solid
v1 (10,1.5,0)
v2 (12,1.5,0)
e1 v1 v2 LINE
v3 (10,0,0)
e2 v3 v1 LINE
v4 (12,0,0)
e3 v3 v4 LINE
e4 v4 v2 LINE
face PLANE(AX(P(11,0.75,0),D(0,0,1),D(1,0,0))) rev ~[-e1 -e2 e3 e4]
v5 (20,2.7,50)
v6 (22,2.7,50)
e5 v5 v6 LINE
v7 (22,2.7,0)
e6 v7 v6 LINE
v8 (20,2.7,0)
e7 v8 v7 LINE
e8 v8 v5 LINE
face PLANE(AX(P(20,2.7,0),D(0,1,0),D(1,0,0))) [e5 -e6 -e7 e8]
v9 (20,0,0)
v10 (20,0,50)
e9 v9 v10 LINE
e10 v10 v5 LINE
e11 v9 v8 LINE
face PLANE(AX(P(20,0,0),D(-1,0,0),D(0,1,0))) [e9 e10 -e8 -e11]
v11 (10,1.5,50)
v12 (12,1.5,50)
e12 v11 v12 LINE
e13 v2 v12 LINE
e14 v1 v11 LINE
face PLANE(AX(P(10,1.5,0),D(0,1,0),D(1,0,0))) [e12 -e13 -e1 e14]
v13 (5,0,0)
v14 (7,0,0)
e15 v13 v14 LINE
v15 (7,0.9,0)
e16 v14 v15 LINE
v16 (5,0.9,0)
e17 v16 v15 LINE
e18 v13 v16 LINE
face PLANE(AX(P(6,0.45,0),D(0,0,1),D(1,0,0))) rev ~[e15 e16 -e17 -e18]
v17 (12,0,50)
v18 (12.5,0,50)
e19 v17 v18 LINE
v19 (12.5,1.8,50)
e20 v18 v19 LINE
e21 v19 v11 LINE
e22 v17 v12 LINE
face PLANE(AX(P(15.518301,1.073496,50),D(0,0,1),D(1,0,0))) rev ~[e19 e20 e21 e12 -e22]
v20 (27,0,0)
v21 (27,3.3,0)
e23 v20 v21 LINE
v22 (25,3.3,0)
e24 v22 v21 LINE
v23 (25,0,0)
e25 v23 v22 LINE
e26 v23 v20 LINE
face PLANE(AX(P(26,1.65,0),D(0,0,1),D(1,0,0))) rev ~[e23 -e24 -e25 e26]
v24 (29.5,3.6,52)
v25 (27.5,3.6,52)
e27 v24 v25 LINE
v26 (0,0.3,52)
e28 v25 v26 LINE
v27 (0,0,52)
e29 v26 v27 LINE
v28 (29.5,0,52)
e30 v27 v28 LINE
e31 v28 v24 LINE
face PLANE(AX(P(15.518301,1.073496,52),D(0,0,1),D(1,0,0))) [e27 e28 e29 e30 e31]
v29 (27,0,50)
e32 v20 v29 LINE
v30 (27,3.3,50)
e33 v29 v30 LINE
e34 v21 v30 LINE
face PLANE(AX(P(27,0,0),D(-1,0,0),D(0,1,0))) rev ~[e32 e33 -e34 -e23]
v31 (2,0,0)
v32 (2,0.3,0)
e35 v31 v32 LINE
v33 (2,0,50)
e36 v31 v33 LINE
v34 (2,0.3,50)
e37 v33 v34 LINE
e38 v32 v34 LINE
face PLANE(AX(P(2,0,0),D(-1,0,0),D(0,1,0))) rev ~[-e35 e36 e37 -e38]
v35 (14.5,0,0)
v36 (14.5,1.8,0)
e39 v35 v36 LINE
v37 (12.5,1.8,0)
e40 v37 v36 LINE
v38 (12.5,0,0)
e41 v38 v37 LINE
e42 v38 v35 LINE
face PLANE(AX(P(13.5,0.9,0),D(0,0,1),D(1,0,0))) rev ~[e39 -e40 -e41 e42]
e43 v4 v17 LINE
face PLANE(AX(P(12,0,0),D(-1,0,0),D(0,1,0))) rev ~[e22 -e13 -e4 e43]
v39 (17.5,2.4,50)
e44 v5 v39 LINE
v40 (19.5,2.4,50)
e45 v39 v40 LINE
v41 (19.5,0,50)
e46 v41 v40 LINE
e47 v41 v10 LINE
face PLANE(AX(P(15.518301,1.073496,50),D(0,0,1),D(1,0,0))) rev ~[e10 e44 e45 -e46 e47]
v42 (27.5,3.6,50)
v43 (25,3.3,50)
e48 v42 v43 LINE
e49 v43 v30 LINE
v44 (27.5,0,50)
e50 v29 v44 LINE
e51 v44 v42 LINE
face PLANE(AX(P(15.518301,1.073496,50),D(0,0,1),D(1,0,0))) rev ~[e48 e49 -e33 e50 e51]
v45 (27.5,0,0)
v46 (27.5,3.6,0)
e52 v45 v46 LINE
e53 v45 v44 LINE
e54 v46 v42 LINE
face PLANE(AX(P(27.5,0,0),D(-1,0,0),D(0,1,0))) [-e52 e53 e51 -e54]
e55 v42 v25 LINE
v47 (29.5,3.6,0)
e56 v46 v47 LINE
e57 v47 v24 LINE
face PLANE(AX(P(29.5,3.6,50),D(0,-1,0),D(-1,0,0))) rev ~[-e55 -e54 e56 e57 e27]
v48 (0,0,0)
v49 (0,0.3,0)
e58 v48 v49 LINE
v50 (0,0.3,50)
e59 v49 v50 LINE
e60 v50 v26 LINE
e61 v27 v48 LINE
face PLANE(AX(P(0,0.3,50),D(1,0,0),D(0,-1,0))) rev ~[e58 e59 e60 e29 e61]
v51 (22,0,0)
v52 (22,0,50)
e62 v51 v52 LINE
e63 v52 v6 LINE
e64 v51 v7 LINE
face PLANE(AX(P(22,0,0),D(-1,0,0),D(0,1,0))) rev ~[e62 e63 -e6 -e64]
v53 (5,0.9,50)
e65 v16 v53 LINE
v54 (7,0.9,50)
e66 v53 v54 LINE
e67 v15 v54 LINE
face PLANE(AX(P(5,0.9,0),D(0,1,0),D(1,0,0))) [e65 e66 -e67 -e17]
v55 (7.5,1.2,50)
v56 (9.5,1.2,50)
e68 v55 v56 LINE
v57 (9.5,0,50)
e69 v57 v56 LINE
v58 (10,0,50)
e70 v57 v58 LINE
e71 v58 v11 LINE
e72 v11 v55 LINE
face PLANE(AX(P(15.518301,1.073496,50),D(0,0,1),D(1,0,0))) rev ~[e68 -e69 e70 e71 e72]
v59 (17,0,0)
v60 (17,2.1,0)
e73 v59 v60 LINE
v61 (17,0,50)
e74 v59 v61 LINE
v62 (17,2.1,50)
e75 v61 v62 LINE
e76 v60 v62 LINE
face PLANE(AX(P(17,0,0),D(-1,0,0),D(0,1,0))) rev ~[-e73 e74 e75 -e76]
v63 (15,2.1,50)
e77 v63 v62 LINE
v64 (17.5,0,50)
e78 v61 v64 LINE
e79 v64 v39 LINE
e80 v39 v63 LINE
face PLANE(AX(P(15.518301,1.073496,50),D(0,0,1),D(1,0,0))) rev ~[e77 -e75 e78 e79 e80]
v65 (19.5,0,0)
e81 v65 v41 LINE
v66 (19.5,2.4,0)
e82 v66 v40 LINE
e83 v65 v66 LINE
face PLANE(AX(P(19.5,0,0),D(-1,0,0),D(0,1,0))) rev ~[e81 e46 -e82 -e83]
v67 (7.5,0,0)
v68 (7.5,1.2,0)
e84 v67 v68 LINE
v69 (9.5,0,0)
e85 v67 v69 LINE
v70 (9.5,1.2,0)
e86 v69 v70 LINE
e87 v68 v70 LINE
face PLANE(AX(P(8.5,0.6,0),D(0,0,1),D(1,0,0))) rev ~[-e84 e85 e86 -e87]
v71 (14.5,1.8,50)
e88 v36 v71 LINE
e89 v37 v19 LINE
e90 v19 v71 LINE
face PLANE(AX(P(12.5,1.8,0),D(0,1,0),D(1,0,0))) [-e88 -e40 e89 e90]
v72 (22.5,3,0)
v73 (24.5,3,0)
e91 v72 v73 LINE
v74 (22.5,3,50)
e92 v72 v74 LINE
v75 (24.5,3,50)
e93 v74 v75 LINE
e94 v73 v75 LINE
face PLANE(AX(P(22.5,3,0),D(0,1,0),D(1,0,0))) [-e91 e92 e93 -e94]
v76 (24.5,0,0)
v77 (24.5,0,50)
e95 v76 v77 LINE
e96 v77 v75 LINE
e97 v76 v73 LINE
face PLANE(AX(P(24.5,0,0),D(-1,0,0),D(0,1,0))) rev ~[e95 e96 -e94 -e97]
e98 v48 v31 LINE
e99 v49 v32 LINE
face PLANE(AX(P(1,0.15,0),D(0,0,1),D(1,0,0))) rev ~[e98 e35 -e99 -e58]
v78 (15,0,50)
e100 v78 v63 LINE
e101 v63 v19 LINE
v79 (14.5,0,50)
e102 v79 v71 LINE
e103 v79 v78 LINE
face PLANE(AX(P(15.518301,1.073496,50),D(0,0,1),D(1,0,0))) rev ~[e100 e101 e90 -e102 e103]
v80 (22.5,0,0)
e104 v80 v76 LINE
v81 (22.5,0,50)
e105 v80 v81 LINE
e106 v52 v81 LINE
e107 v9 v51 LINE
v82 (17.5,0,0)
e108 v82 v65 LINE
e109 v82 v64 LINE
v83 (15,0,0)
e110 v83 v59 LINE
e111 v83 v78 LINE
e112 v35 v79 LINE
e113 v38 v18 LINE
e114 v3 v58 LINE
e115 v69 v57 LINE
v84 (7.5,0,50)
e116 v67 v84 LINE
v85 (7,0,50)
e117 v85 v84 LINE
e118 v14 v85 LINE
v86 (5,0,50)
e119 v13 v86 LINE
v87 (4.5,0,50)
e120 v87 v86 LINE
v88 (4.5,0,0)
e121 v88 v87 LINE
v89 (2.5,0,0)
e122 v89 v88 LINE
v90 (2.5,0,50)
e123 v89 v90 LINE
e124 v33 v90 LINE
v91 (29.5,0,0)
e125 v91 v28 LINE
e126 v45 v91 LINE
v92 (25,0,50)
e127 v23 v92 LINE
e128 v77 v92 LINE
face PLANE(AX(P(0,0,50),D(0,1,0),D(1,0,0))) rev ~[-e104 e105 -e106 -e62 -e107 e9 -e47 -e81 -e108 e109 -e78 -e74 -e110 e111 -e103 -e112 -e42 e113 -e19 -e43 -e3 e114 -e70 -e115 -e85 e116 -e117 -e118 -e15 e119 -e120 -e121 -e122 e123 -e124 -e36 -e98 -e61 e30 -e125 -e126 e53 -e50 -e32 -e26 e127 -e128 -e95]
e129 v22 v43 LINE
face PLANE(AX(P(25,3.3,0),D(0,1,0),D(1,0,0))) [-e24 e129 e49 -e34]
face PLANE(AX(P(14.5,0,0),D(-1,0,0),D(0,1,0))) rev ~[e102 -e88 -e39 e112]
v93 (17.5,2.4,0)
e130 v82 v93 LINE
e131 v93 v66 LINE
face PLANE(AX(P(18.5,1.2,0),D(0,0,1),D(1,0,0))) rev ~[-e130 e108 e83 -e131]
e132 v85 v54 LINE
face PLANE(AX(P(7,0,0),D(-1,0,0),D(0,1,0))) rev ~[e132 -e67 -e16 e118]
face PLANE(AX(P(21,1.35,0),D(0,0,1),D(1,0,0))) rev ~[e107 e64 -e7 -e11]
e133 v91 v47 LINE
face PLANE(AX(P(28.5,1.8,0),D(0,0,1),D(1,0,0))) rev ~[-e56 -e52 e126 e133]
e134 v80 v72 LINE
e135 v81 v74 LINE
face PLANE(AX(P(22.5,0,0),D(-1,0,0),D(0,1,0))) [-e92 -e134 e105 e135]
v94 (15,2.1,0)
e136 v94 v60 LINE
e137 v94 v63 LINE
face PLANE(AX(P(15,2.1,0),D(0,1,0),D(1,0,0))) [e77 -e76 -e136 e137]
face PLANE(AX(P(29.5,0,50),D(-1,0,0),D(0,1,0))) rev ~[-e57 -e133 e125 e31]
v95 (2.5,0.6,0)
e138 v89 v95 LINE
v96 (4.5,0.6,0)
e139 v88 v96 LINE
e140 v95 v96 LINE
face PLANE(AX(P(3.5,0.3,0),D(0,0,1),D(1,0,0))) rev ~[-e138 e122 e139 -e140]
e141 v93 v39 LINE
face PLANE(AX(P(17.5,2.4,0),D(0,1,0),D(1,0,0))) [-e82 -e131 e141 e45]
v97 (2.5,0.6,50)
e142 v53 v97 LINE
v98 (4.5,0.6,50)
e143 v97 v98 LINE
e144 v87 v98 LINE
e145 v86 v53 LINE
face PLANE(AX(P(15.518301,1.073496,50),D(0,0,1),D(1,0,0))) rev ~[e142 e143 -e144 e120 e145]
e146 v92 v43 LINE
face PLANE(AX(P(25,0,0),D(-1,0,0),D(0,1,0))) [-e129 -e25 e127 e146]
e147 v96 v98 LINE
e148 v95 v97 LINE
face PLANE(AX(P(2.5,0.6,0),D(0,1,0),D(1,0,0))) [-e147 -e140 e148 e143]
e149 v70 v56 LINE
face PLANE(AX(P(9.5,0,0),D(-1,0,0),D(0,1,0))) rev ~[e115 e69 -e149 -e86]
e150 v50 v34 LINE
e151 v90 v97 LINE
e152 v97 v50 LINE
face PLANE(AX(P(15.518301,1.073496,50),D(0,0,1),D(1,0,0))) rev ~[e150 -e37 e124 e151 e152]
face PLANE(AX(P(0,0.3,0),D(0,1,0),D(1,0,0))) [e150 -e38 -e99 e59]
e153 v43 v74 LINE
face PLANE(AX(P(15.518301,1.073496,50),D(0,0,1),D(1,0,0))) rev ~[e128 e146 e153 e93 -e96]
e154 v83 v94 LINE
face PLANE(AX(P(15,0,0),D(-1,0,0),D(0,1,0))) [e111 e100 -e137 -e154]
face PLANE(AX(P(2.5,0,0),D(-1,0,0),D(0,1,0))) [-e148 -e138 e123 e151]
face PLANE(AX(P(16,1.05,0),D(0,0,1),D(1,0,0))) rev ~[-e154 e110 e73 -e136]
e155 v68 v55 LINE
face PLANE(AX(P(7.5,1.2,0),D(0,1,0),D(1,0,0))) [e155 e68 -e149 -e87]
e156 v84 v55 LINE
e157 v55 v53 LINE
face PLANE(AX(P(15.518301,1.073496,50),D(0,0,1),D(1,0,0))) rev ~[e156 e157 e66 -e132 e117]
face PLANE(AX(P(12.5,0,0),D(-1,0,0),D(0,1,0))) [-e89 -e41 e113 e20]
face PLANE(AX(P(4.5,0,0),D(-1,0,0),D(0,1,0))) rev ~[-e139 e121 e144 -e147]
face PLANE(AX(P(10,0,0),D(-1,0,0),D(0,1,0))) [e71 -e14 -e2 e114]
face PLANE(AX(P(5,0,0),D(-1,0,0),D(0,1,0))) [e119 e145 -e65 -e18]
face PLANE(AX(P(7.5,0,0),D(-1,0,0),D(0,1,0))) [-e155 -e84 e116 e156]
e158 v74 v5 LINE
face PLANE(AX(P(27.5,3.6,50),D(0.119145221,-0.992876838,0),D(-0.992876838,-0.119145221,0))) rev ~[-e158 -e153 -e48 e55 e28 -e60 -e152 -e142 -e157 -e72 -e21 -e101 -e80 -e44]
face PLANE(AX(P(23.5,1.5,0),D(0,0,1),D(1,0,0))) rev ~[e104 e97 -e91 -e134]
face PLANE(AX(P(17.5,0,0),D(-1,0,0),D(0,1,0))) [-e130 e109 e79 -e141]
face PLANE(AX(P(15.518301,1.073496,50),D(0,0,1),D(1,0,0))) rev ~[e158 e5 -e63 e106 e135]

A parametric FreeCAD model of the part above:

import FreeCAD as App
import Part
import Sketcher

doc = App.newDocument("Part")
params = doc.addObject("Spreadsheet::Sheet", "Params")
for row, (alias, value) in enumerate([
    ("sketch1_width", "2 mm"),
    ("sketch1_height", "0.3 mm"),
    ("pad1_length", "50 mm"),
    ("sketch2_width", "2 mm"),
    ("sketch2_height", "0.6 mm"),
    ("pad2_length", "50 mm"),
    ("sketch3_width", "2 mm"),
    ("sketch3_height", "0.9 mm"),
    ("pad3_length", "50 mm"),
    ("sketch4_width", "2 mm"),
    ("sketch4_height", "1.2 mm"),
    ("pad4_length", "50 mm"),
    ("sketch5_width", "2 mm"),
    ("sketch5_height", "1.5 mm"),
    ("pad5_length", "50 mm"),
    ("sketch6_width", "2 mm"),
    ("sketch6_height", "1.8 mm"),
    ("pad6_length", "50 mm"),
    ("sketch7_width", "2 mm"),
    ("sketch7_height", "2.1 mm"),
    ("pad7_length", "50 mm"),
    ("sketch8_width", "2 mm"),
    ("sketch8_height", "2.4 mm"),
    ("pad8_length", "50 mm"),
    ("sketch9_width", "2 mm"),
    ("sketch9_height", "2.7 mm"),
    ("pad9_length", "50 mm"),
    ("sketch10_width", "2 mm"),
    ("sketch10_height", "3 mm"),
    ("pad10_length", "50 mm"),
    ("sketch11_width", "2 mm"),
    ("sketch11_height", "3.3 mm"),
    ("pad11_length", "50 mm"),
    ("sketch12_width", "2 mm"),
    ("sketch12_height", "3.6 mm"),
    ("pad12_length", "50 mm"),
    ("sketch13_width", "2 mm"),
    ("sketch13_width2", "29.5 mm"),
    ("sketch13_height", "3.6 mm"),
    ("sketch13_height2", "0.3 mm"),
    ("pad13_length", "2 mm"),
], start=1):
    params.set(f"A{row}", alias)
    params.set(f"B{row}", "=" + value)
    params.setAlias(f"B{row}", alias)

body = doc.addObject("PartDesign::Body", "Body")

# Sketch on XY plane
sketch1 = doc.addObject("Sketcher::SketchObject", "Sketch")
body.addObject(sketch1)
sketch1.AttachmentSupport = (doc.XY_Plane, [""])
sketch1.MapMode = "FlatFace"
sketch1.addGeometry(Part.LineSegment(App.Vector(0, 0.3, 0), App.Vector(0, 0, 0)), False)
sketch1.addGeometry(Part.LineSegment(App.Vector(0, 0, 0), App.Vector(2, 0, 0)), False)
sketch1.addGeometry(Part.LineSegment(App.Vector(2, 0, 0), App.Vector(2, 0.3, 0)), False)
sketch1.addGeometry(Part.LineSegment(App.Vector(2, 0.3, 0), App.Vector(0, 0.3, 0)), False)
sketch1.addConstraint(Sketcher.Constraint("Coincident", 0, 2, 1, 1))
sketch1.addConstraint(Sketcher.Constraint("Coincident", 1, 2, 2, 1))
sketch1.addConstraint(Sketcher.Constraint("Coincident", 2, 2, 3, 1))
sketch1.addConstraint(Sketcher.Constraint("Coincident", 3, 2, 0, 1))
sketch1.addConstraint(Sketcher.Constraint("Vertical", 0))
sketch1.addConstraint(Sketcher.Constraint("Horizontal", 1))
sketch1.addConstraint(Sketcher.Constraint("Vertical", 2))
sketch1.addConstraint(Sketcher.Constraint("Horizontal", 3))
sketch1.addConstraint(Sketcher.Constraint("Coincident", 0, 2, -1, 1))
sketch1.addConstraint(Sketcher.Constraint("DistanceX", 1, 1, 1, 2, 2.0))
sketch1.addConstraint(Sketcher.Constraint("DistanceY", 0, 2, 0, 1, 0.3))
sketch1.setExpression("Constraints[9]", "Params.sketch1_width")
sketch1.setExpression("Constraints[10]", "Params.sketch1_height")
pad1 = doc.addObject("PartDesign::Pad", "Pad")
body.addObject(pad1)
pad1.Profile = sketch1
pad1.setExpression("Length", "Params.pad1_length")
body2 = doc.addObject("PartDesign::Body", "Body001")

# Sketch on XY plane
sketch2 = doc.addObject("Sketcher::SketchObject", "Sketch001")
body2.addObject(sketch2)
sketch2.AttachmentSupport = (doc.getObject("XY_Plane001"), [""])
sketch2.MapMode = "FlatFace"
sketch2.addGeometry(Part.LineSegment(App.Vector(2.5, 0.6, 0), App.Vector(2.5, 0, 0)), False)
sketch2.addGeometry(Part.LineSegment(App.Vector(2.5, 0, 0), App.Vector(4.5, 0, 0)), False)
sketch2.addGeometry(Part.LineSegment(App.Vector(4.5, 0, 0), App.Vector(4.5, 0.6, 0)), False)
sketch2.addGeometry(Part.LineSegment(App.Vector(4.5, 0.6, 0), App.Vector(2.5, 0.6, 0)), False)
sketch2.addConstraint(Sketcher.Constraint("Coincident", 0, 2, 1, 1))
sketch2.addConstraint(Sketcher.Constraint("Coincident", 1, 2, 2, 1))
sketch2.addConstraint(Sketcher.Constraint("Coincident", 2, 2, 3, 1))
sketch2.addConstraint(Sketcher.Constraint("Coincident", 3, 2, 0, 1))
sketch2.addConstraint(Sketcher.Constraint("Vertical", 0))
sketch2.addConstraint(Sketcher.Constraint("Horizontal", 1))
sketch2.addConstraint(Sketcher.Constraint("Vertical", 2))
sketch2.addConstraint(Sketcher.Constraint("Horizontal", 3))
sketch2.addConstraint(Sketcher.Constraint("PointOnObject", 0, 2, -1))
sketch2.addConstraint(Sketcher.Constraint("DistanceX", 1, 1, 1, 2, 2.0))
sketch2.addConstraint(Sketcher.Constraint("DistanceY", 0, 2, 0, 1, 0.6))
sketch2.addConstraint(Sketcher.Constraint("DistanceX", -1, 1, 0, 2, 2.5))
sketch2.setExpression("Constraints[9]", "Params.sketch2_width")
sketch2.setExpression("Constraints[10]", "Params.sketch2_height")
pad2 = doc.addObject("PartDesign::Pad", "Pad001")
body2.addObject(pad2)
pad2.Profile = sketch2
pad2.setExpression("Length", "Params.pad2_length")
body3 = doc.addObject("PartDesign::Body", "Body002")

# Sketch on XY plane
sketch3 = doc.addObject("Sketcher::SketchObject", "Sketch002")
body3.addObject(sketch3)
sketch3.AttachmentSupport = (doc.getObject("XY_Plane002"), [""])
sketch3.MapMode = "FlatFace"
sketch3.addGeometry(Part.LineSegment(App.Vector(5, 0.9, 0), App.Vector(5, 0, 0)), False)
sketch3.addGeometry(Part.LineSegment(App.Vector(5, 0, 0), App.Vector(7, 0, 0)), False)
sketch3.addGeometry(Part.LineSegment(App.Vector(7, 0, 0), App.Vector(7, 0.9, 0)), False)
sketch3.addGeometry(Part.LineSegment(App.Vector(7, 0.9, 0), App.Vector(5, 0.9, 0)), False)
sketch3.addConstraint(Sketcher.Constraint("Coincident", 0, 2, 1, 1))
sketch3.addConstraint(Sketcher.Constraint("Coincident", 1, 2, 2, 1))
sketch3.addConstraint(Sketcher.Constraint("Coincident", 2, 2, 3, 1))
sketch3.addConstraint(Sketcher.Constraint("Coincident", 3, 2, 0, 1))
sketch3.addConstraint(Sketcher.Constraint("Vertical", 0))
sketch3.addConstraint(Sketcher.Constraint("Horizontal", 1))
sketch3.addConstraint(Sketcher.Constraint("Vertical", 2))
sketch3.addConstraint(Sketcher.Constraint("Horizontal", 3))
sketch3.addConstraint(Sketcher.Constraint("PointOnObject", 0, 2, -1))
sketch3.addConstraint(Sketcher.Constraint("DistanceX", 1, 1, 1, 2, 2.0))
sketch3.addConstraint(Sketcher.Constraint("DistanceY", 0, 2, 0, 1, 0.9))
sketch3.addConstraint(Sketcher.Constraint("DistanceX", -1, 1, 0, 2, 5.0))
sketch3.setExpression("Constraints[9]", "Params.sketch3_width")
sketch3.setExpression("Constraints[10]", "Params.sketch3_height")
pad3 = doc.addObject("PartDesign::Pad", "Pad002")
body3.addObject(pad3)
pad3.Profile = sketch3
pad3.setExpression("Length", "Params.pad3_length")
body4 = doc.addObject("PartDesign::Body", "Body003")

# Sketch on XY plane
sketch4 = doc.addObject("Sketcher::SketchObject", "Sketch003")
body4.addObject(sketch4)
sketch4.AttachmentSupport = (doc.getObject("XY_Plane003"), [""])
sketch4.MapMode = "FlatFace"
sketch4.addGeometry(Part.LineSegment(App.Vector(7.5, 1.2, 0), App.Vector(7.5, 0, 0)), False)
sketch4.addGeometry(Part.LineSegment(App.Vector(7.5, 0, 0), App.Vector(9.5, 0, 0)), False)
sketch4.addGeometry(Part.LineSegment(App.Vector(9.5, 0, 0), App.Vector(9.5, 1.2, 0)), False)
sketch4.addGeometry(Part.LineSegment(App.Vector(9.5, 1.2, 0), App.Vector(7.5, 1.2, 0)), False)
sketch4.addConstraint(Sketcher.Constraint("Coincident", 0, 2, 1, 1))
sketch4.addConstraint(Sketcher.Constraint("Coincident", 1, 2, 2, 1))
sketch4.addConstraint(Sketcher.Constraint("Coincident", 2, 2, 3, 1))
sketch4.addConstraint(Sketcher.Constraint("Coincident", 3, 2, 0, 1))
sketch4.addConstraint(Sketcher.Constraint("Vertical", 0))
sketch4.addConstraint(Sketcher.Constraint("Horizontal", 1))
sketch4.addConstraint(Sketcher.Constraint("Vertical", 2))
sketch4.addConstraint(Sketcher.Constraint("Horizontal", 3))
sketch4.addConstraint(Sketcher.Constraint("PointOnObject", 0, 2, -1))
sketch4.addConstraint(Sketcher.Constraint("DistanceX", 1, 1, 1, 2, 2.0))
sketch4.addConstraint(Sketcher.Constraint("DistanceY", 0, 2, 0, 1, 1.2))
sketch4.addConstraint(Sketcher.Constraint("DistanceX", -1, 1, 0, 2, 7.5))
sketch4.setExpression("Constraints[9]", "Params.sketch4_width")
sketch4.setExpression("Constraints[10]", "Params.sketch4_height")
pad4 = doc.addObject("PartDesign::Pad", "Pad003")
body4.addObject(pad4)
pad4.Profile = sketch4
pad4.setExpression("Length", "Params.pad4_length")
body5 = doc.addObject("PartDesign::Body", "Body004")

# Sketch on XY plane
sketch5 = doc.addObject("Sketcher::SketchObject", "Sketch004")
body5.addObject(sketch5)
sketch5.AttachmentSupport = (doc.getObject("XY_Plane004"), [""])
sketch5.MapMode = "FlatFace"
sketch5.addGeometry(Part.LineSegment(App.Vector(10, 1.5, 0), App.Vector(10, 0, 0)), False)
sketch5.addGeometry(Part.LineSegment(App.Vector(10, 0, 0), App.Vector(12, 0, 0)), False)
sketch5.addGeometry(Part.LineSegment(App.Vector(12, 0, 0), App.Vector(12, 1.5, 0)), False)
sketch5.addGeometry(Part.LineSegment(App.Vector(12, 1.5, 0), App.Vector(10, 1.5, 0)), False)
sketch5.addConstraint(Sketcher.Constraint("Coincident", 0, 2, 1, 1))
sketch5.addConstraint(Sketcher.Constraint("Coincident", 1, 2, 2, 1))
sketch5.addConstraint(Sketcher.Constraint("Coincident", 2, 2, 3, 1))
sketch5.addConstraint(Sketcher.Constraint("Coincident", 3, 2, 0, 1))
sketch5.addConstraint(Sketcher.Constraint("Vertical", 0))
sketch5.addConstraint(Sketcher.Constraint("Horizontal", 1))
sketch5.addConstraint(Sketcher.Constraint("Vertical", 2))
sketch5.addConstraint(Sketcher.Constraint("Horizontal", 3))
sketch5.addConstraint(Sketcher.Constraint("PointOnObject", 0, 2, -1))
sketch5.addConstraint(Sketcher.Constraint("DistanceX", 1, 1, 1, 2, 2.0))
sketch5.addConstraint(Sketcher.Constraint("DistanceY", 0, 2, 0, 1, 1.5))
sketch5.addConstraint(Sketcher.Constraint("DistanceX", -1, 1, 0, 2, 10.0))
sketch5.setExpression("Constraints[9]", "Params.sketch5_width")
sketch5.setExpression("Constraints[10]", "Params.sketch5_height")
pad5 = doc.addObject("PartDesign::Pad", "Pad004")
body5.addObject(pad5)
pad5.Profile = sketch5
pad5.setExpression("Length", "Params.pad5_length")
body6 = doc.addObject("PartDesign::Body", "Body005")

# Sketch on XY plane
sketch6 = doc.addObject("Sketcher::SketchObject", "Sketch005")
body6.addObject(sketch6)
sketch6.AttachmentSupport = (doc.getObject("XY_Plane005"), [""])
sketch6.MapMode = "FlatFace"
sketch6.addGeometry(Part.LineSegment(App.Vector(12.5, 1.8, 0), App.Vector(12.5, 0, 0)), False)
sketch6.addGeometry(Part.LineSegment(App.Vector(12.5, 0, 0), App.Vector(14.5, 0, 0)), False)
sketch6.addGeometry(Part.LineSegment(App.Vector(14.5, 0, 0), App.Vector(14.5, 1.8, 0)), False)
sketch6.addGeometry(Part.LineSegment(App.Vector(14.5, 1.8, 0), App.Vector(12.5, 1.8, 0)), False)
sketch6.addConstraint(Sketcher.Constraint("Coincident", 0, 2, 1, 1))
sketch6.addConstraint(Sketcher.Constraint("Coincident", 1, 2, 2, 1))
sketch6.addConstraint(Sketcher.Constraint("Coincident", 2, 2, 3, 1))
sketch6.addConstraint(Sketcher.Constraint("Coincident", 3, 2, 0, 1))
sketch6.addConstraint(Sketcher.Constraint("Vertical", 0))
sketch6.addConstraint(Sketcher.Constraint("Horizontal", 1))
sketch6.addConstraint(Sketcher.Constraint("Vertical", 2))
sketch6.addConstraint(Sketcher.Constraint("Horizontal", 3))
sketch6.addConstraint(Sketcher.Constraint("PointOnObject", 0, 2, -1))
sketch6.addConstraint(Sketcher.Constraint("DistanceX", 1, 1, 1, 2, 2.0))
sketch6.addConstraint(Sketcher.Constraint("DistanceY", 0, 2, 0, 1, 1.8))
sketch6.addConstraint(Sketcher.Constraint("DistanceX", -1, 1, 0, 2, 12.5))
sketch6.setExpression("Constraints[9]", "Params.sketch6_width")
sketch6.setExpression("Constraints[10]", "Params.sketch6_height")
pad6 = doc.addObject("PartDesign::Pad", "Pad005")
body6.addObject(pad6)
pad6.Profile = sketch6
pad6.setExpression("Length", "Params.pad6_length")
body7 = doc.addObject("PartDesign::Body", "Body006")

# Sketch on XY plane
sketch7 = doc.addObject("Sketcher::SketchObject", "Sketch006")
body7.addObject(sketch7)
sketch7.AttachmentSupport = (doc.getObject("XY_Plane006"), [""])
sketch7.MapMode = "FlatFace"
sketch7.addGeometry(Part.LineSegment(App.Vector(15, 2.1, 0), App.Vector(15, 0, 0)), False)
sketch7.addGeometry(Part.LineSegment(App.Vector(15, 0, 0), App.Vector(17, 0, 0)), False)
sketch7.addGeometry(Part.LineSegment(App.Vector(17, 0, 0), App.Vector(17, 2.1, 0)), False)
sketch7.addGeometry(Part.LineSegment(App.Vector(17, 2.1, 0), App.Vector(15, 2.1, 0)), False)
sketch7.addConstraint(Sketcher.Constraint("Coincident", 0, 2, 1, 1))
sketch7.addConstraint(Sketcher.Constraint("Coincident", 1, 2, 2, 1))
sketch7.addConstraint(Sketcher.Constraint("Coincident", 2, 2, 3, 1))
sketch7.addConstraint(Sketcher.Constraint("Coincident", 3, 2, 0, 1))
sketch7.addConstraint(Sketcher.Constraint("Vertical", 0))
sketch7.addConstraint(Sketcher.Constraint("Horizontal", 1))
sketch7.addConstraint(Sketcher.Constraint("Vertical", 2))
sketch7.addConstraint(Sketcher.Constraint("Horizontal", 3))
sketch7.addConstraint(Sketcher.Constraint("PointOnObject", 0, 2, -1))
sketch7.addConstraint(Sketcher.Constraint("DistanceX", 1, 1, 1, 2, 2.0))
sketch7.addConstraint(Sketcher.Constraint("DistanceY", 0, 2, 0, 1, 2.1))
sketch7.addConstraint(Sketcher.Constraint("DistanceX", -1, 1, 0, 2, 15.0))
sketch7.setExpression("Constraints[9]", "Params.sketch7_width")
sketch7.setExpression("Constraints[10]", "Params.sketch7_height")
pad7 = doc.addObject("PartDesign::Pad", "Pad006")
body7.addObject(pad7)
pad7.Profile = sketch7
pad7.setExpression("Length", "Params.pad7_length")
body8 = doc.addObject("PartDesign::Body", "Body007")

# Sketch on XY plane
sketch8 = doc.addObject("Sketcher::SketchObject", "Sketch007")
body8.addObject(sketch8)
sketch8.AttachmentSupport = (doc.getObject("XY_Plane007"), [""])
sketch8.MapMode = "FlatFace"
sketch8.addGeometry(Part.LineSegment(App.Vector(17.5, 2.4, 0), App.Vector(17.5, 0, 0)), False)
sketch8.addGeometry(Part.LineSegment(App.Vector(17.5, 0, 0), App.Vector(19.5, 0, 0)), False)
sketch8.addGeometry(Part.LineSegment(App.Vector(19.5, 0, 0), App.Vector(19.5, 2.4, 0)), False)
sketch8.addGeometry(Part.LineSegment(App.Vector(19.5, 2.4, 0), App.Vector(17.5, 2.4, 0)), False)
sketch8.addConstraint(Sketcher.Constraint("Coincident", 0, 2, 1, 1))
sketch8.addConstraint(Sketcher.Constraint("Coincident", 1, 2, 2, 1))
sketch8.addConstraint(Sketcher.Constraint("Coincident", 2, 2, 3, 1))
sketch8.addConstraint(Sketcher.Constraint("Coincident", 3, 2, 0, 1))
sketch8.addConstraint(Sketcher.Constraint("Vertical", 0))
sketch8.addConstraint(Sketcher.Constraint("Horizontal", 1))
sketch8.addConstraint(Sketcher.Constraint("Vertical", 2))
sketch8.addConstraint(Sketcher.Constraint("Horizontal", 3))
sketch8.addConstraint(Sketcher.Constraint("PointOnObject", 0, 2, -1))
sketch8.addConstraint(Sketcher.Constraint("DistanceX", 1, 1, 1, 2, 2.0))
sketch8.addConstraint(Sketcher.Constraint("DistanceY", 0, 2, 0, 1, 2.4))
sketch8.addConstraint(Sketcher.Constraint("DistanceX", -1, 1, 0, 2, 17.5))
sketch8.setExpression("Constraints[9]", "Params.sketch8_width")
sketch8.setExpression("Constraints[10]", "Params.sketch8_height")
pad8 = doc.addObject("PartDesign::Pad", "Pad007")
body8.addObject(pad8)
pad8.Profile = sketch8
pad8.setExpression("Length", "Params.pad8_length")
body9 = doc.addObject("PartDesign::Body", "Body008")

# Sketch on XY plane
sketch9 = doc.addObject("Sketcher::SketchObject", "Sketch008")
body9.addObject(sketch9)
sketch9.AttachmentSupport = (doc.getObject("XY_Plane008"), [""])
sketch9.MapMode = "FlatFace"
sketch9.addGeometry(Part.LineSegment(App.Vector(20, 2.7, 0), App.Vector(20, 0, 0)), False)
sketch9.addGeometry(Part.LineSegment(App.Vector(20, 0, 0), App.Vector(22, 0, 0)), False)
sketch9.addGeometry(Part.LineSegment(App.Vector(22, 0, 0), App.Vector(22, 2.7, 0)), False)
sketch9.addGeometry(Part.LineSegment(App.Vector(22, 2.7, 0), App.Vector(20, 2.7, 0)), False)
sketch9.addConstraint(Sketcher.Constraint("Coincident", 0, 2, 1, 1))
sketch9.addConstraint(Sketcher.Constraint("Coincident", 1, 2, 2, 1))
sketch9.addConstraint(Sketcher.Constraint("Coincident", 2, 2, 3, 1))
sketch9.addConstraint(Sketcher.Constraint("Coincident", 3, 2, 0, 1))
sketch9.addConstraint(Sketcher.Constraint("Vertical", 0))
sketch9.addConstraint(Sketcher.Constraint("Horizontal", 1))
sketch9.addConstraint(Sketcher.Constraint("Vertical", 2))
sketch9.addConstraint(Sketcher.Constraint("Horizontal", 3))
sketch9.addConstraint(Sketcher.Constraint("PointOnObject", 0, 2, -1))
sketch9.addConstraint(Sketcher.Constraint("DistanceX", 1, 1, 1, 2, 2.0))
sketch9.addConstraint(Sketcher.Constraint("DistanceY", 0, 2, 0, 1, 2.7))
sketch9.addConstraint(Sketcher.Constraint("DistanceX", -1, 1, 0, 2, 20.0))
sketch9.setExpression("Constraints[9]", "Params.sketch9_width")
sketch9.setExpression("Constraints[10]", "Params.sketch9_height")
pad9 = doc.addObject("PartDesign::Pad", "Pad008")
body9.addObject(pad9)
pad9.Profile = sketch9
pad9.setExpression("Length", "Params.pad9_length")
body10 = doc.addObject("PartDesign::Body", "Body009")

# Sketch on XY plane
sketch10 = doc.addObject("Sketcher::SketchObject", "Sketch009")
body10.addObject(sketch10)
sketch10.AttachmentSupport = (doc.getObject("XY_Plane009"), [""])
sketch10.MapMode = "FlatFace"
sketch10.addGeometry(Part.LineSegment(App.Vector(22.5, 3, 0), App.Vector(22.5, 0, 0)), False)
sketch10.addGeometry(Part.LineSegment(App.Vector(22.5, 0, 0), App.Vector(24.5, 0, 0)), False)
sketch10.addGeometry(Part.LineSegment(App.Vector(24.5, 0, 0), App.Vector(24.5, 3, 0)), False)
sketch10.addGeometry(Part.LineSegment(App.Vector(24.5, 3, 0), App.Vector(22.5, 3, 0)), False)
sketch10.addConstraint(Sketcher.Constraint("Coincident", 0, 2, 1, 1))
sketch10.addConstraint(Sketcher.Constraint("Coincident", 1, 2, 2, 1))
sketch10.addConstraint(Sketcher.Constraint("Coincident", 2, 2, 3, 1))
sketch10.addConstraint(Sketcher.Constraint("Coincident", 3, 2, 0, 1))
sketch10.addConstraint(Sketcher.Constraint("Vertical", 0))
sketch10.addConstraint(Sketcher.Constraint("Horizontal", 1))
sketch10.addConstraint(Sketcher.Constraint("Vertical", 2))
sketch10.addConstraint(Sketcher.Constraint("Horizontal", 3))
sketch10.addConstraint(Sketcher.Constraint("PointOnObject", 0, 2, -1))
sketch10.addConstraint(Sketcher.Constraint("DistanceX", 1, 1, 1, 2, 2.0))
sketch10.addConstraint(Sketcher.Constraint("DistanceY", 0, 2, 0, 1, 3.0))
sketch10.addConstraint(Sketcher.Constraint("DistanceX", -1, 1, 0, 2, 22.5))
sketch10.setExpression("Constraints[9]", "Params.sketch10_width")
sketch10.setExpression("Constraints[10]", "Params.sketch10_height")
pad10 = doc.addObject("PartDesign::Pad", "Pad009")
body10.addObject(pad10)
pad10.Profile = sketch10
pad10.setExpression("Length", "Params.pad10_length")
body11 = doc.addObject("PartDesign::Body", "Body010")

# Sketch on XY plane
sketch11 = doc.addObject("Sketcher::SketchObject", "Sketch010")
body11.addObject(sketch11)
sketch11.AttachmentSupport = (doc.getObject("XY_Plane010"), [""])
sketch11.MapMode = "FlatFace"
sketch11.addGeometry(Part.LineSegment(App.Vector(25, 3.3, 0), App.Vector(25, 0, 0)), False)
sketch11.addGeometry(Part.LineSegment(App.Vector(25, 0, 0), App.Vector(27, 0, 0)), False)
sketch11.addGeometry(Part.LineSegment(App.Vector(27, 0, 0), App.Vector(27, 3.3, 0)), False)
sketch11.addGeometry(Part.LineSegment(App.Vector(27, 3.3, 0), App.Vector(25, 3.3, 0)), False)
sketch11.addConstraint(Sketcher.Constraint("Coincident", 0, 2, 1, 1))
sketch11.addConstraint(Sketcher.Constraint("Coincident", 1, 2, 2, 1))
sketch11.addConstraint(Sketcher.Constraint("Coincident", 2, 2, 3, 1))
sketch11.addConstraint(Sketcher.Constraint("Coincident", 3, 2, 0, 1))
sketch11.addConstraint(Sketcher.Constraint("Vertical", 0))
sketch11.addConstraint(Sketcher.Constraint("Horizontal", 1))
sketch11.addConstraint(Sketcher.Constraint("Vertical", 2))
sketch11.addConstraint(Sketcher.Constraint("Horizontal", 3))
sketch11.addConstraint(Sketcher.Constraint("PointOnObject", 0, 2, -1))
sketch11.addConstraint(Sketcher.Constraint("DistanceX", 1, 1, 1, 2, 2.0))
sketch11.addConstraint(Sketcher.Constraint("DistanceY", 0, 2, 0, 1, 3.3))
sketch11.addConstraint(Sketcher.Constraint("DistanceX", -1, 1, 0, 2, 25.0))
sketch11.setExpression("Constraints[9]", "Params.sketch11_width")
sketch11.setExpression("Constraints[10]", "Params.sketch11_height")
pad11 = doc.addObject("PartDesign::Pad", "Pad010")
body11.addObject(pad11)
pad11.Profile = sketch11
pad11.setExpression("Length", "Params.pad11_length")
body12 = doc.addObject("PartDesign::Body", "Body011")

# Sketch on XY plane
sketch12 = doc.addObject("Sketcher::SketchObject", "Sketch011")
body12.addObject(sketch12)
sketch12.AttachmentSupport = (doc.getObject("XY_Plane011"), [""])
sketch12.MapMode = "FlatFace"
sketch12.addGeometry(Part.LineSegment(App.Vector(27.5, 3.6, 0), App.Vector(27.5, 0, 0)), False)
sketch12.addGeometry(Part.LineSegment(App.Vector(27.5, 0, 0), App.Vector(29.5, 0, 0)), False)
sketch12.addGeometry(Part.LineSegment(App.Vector(29.5, 0, 0), App.Vector(29.5, 3.6, 0)), False)
sketch12.addGeometry(Part.LineSegment(App.Vector(29.5, 3.6, 0), App.Vector(27.5, 3.6, 0)), False)
sketch12.addConstraint(Sketcher.Constraint("Coincident", 0, 2, 1, 1))
sketch12.addConstraint(Sketcher.Constraint("Coincident", 1, 2, 2, 1))
sketch12.addConstraint(Sketcher.Constraint("Coincident", 2, 2, 3, 1))
sketch12.addConstraint(Sketcher.Constraint("Coincident", 3, 2, 0, 1))
sketch12.addConstraint(Sketcher.Constraint("Vertical", 0))
sketch12.addConstraint(Sketcher.Constraint("Horizontal", 1))
sketch12.addConstraint(Sketcher.Constraint("Vertical", 2))
sketch12.addConstraint(Sketcher.Constraint("Horizontal", 3))
sketch12.addConstraint(Sketcher.Constraint("PointOnObject", 0, 2, -1))
sketch12.addConstraint(Sketcher.Constraint("DistanceX", 1, 1, 1, 2, 2.0))
sketch12.addConstraint(Sketcher.Constraint("DistanceY", 0, 2, 0, 1, 3.6))
sketch12.addConstraint(Sketcher.Constraint("DistanceX", -1, 1, 0, 2, 27.5))
sketch12.setExpression("Constraints[9]", "Params.sketch12_width")
sketch12.setExpression("Constraints[10]", "Params.sketch12_height")
pad12 = doc.addObject("PartDesign::Pad", "Pad011")
body12.addObject(pad12)
pad12.Profile = sketch12
pad12.setExpression("Length", "Params.pad12_length")
body.AllowCompound = True
doc.recompute()

boolean = doc.addObject("PartDesign::Boolean", "Boolean")
body.addObject(boolean)
boolean.Type = "Fuse"
boolean.addObjects([body2])
doc.recompute()

boolean2 = doc.addObject("PartDesign::Boolean", "Boolean001")
body.addObject(boolean2)
boolean2.Type = "Fuse"
boolean2.addObjects([body3])
doc.recompute()

boolean3 = doc.addObject("PartDesign::Boolean", "Boolean002")
body.addObject(boolean3)
boolean3.Type = "Fuse"
boolean3.addObjects([body4])
doc.recompute()

boolean4 = doc.addObject("PartDesign::Boolean", "Boolean003")
body.addObject(boolean4)
boolean4.Type = "Fuse"
boolean4.addObjects([body5])
doc.recompute()

boolean5 = doc.addObject("PartDesign::Boolean", "Boolean004")
body.addObject(boolean5)
boolean5.Type = "Fuse"
boolean5.addObjects([body6])
doc.recompute()

boolean6 = doc.addObject("PartDesign::Boolean", "Boolean005")
body.addObject(boolean6)
boolean6.Type = "Fuse"
boolean6.addObjects([body7])
doc.recompute()

boolean7 = doc.addObject("PartDesign::Boolean", "Boolean006")
body.addObject(boolean7)
boolean7.Type = "Fuse"
boolean7.addObjects([body8])
doc.recompute()

boolean8 = doc.addObject("PartDesign::Boolean", "Boolean007")
body.addObject(boolean8)
boolean8.Type = "Fuse"
boolean8.addObjects([body9])
doc.recompute()

boolean9 = doc.addObject("PartDesign::Boolean", "Boolean008")
body.addObject(boolean9)
boolean9.Type = "Fuse"
boolean9.addObjects([body10])
doc.recompute()

boolean10 = doc.addObject("PartDesign::Boolean", "Boolean009")
body.addObject(boolean10)
boolean10.Type = "Fuse"
boolean10.addObjects([body11])
doc.recompute()

boolean11 = doc.addObject("PartDesign::Boolean", "Boolean010")
body.addObject(boolean11)
boolean11.Type = "Fuse"
boolean11.addObjects([body12])

# Sketch on XY plane
sketch13 = doc.addObject("Sketcher::SketchObject", "Sketch012")
body.addObject(sketch13)
sketch13.AttachmentSupport = (doc.XY_Plane, [""])
sketch13.MapMode = "FlatFace"
sketch13.AttachmentOffset = App.Placement(App.Vector(0, 0, 50), App.Rotation())
sketch13.addGeometry(Part.LineSegment(App.Vector(0, 0, 0), App.Vector(29.5, 0, 0)), False)
sketch13.addGeometry(Part.LineSegment(App.Vector(29.5, 0, 0), App.Vector(29.5, 3.6, 0)), False)
sketch13.addGeometry(Part.LineSegment(App.Vector(29.5, 3.6, 0), App.Vector(27.5, 3.6, 0)), False)
sketch13.addGeometry(Part.LineSegment(App.Vector(27.5, 3.6, 0), App.Vector(0, 0.3, 0)), False)
sketch13.addGeometry(Part.LineSegment(App.Vector(0, 0.3, 0), App.Vector(0, 0, 0)), False)
sketch13.addConstraint(Sketcher.Constraint("Coincident", 0, 2, 1, 1))
sketch13.addConstraint(Sketcher.Constraint("Coincident", 1, 2, 2, 1))
sketch13.addConstraint(Sketcher.Constraint("Coincident", 2, 2, 3, 1))
sketch13.addConstraint(Sketcher.Constraint("Coincident", 3, 2, 4, 1))
sketch13.addConstraint(Sketcher.Constraint("Coincident", 4, 2, 0, 1))
sketch13.addConstraint(Sketcher.Constraint("Horizontal", 0))
sketch13.addConstraint(Sketcher.Constraint("Vertical", 1))
sketch13.addConstraint(Sketcher.Constraint("Horizontal", 2))
sketch13.addConstraint(Sketcher.Constraint("Vertical", 4))
sketch13.addConstraint(Sketcher.Constraint("Coincident", 4, 2, -1, 1))
sketch13.addConstraint(Sketcher.Constraint("DistanceX", 2, 2, 2, 1, 2.0))
sketch13.addConstraint(Sketcher.Constraint("DistanceX", 0, 1, 0, 2, 29.5))
sketch13.addConstraint(Sketcher.Constraint("DistanceY", 1, 1, 1, 2, 3.6))
sketch13.addConstraint(Sketcher.Constraint("DistanceY", 4, 2, 4, 1, 0.3))
sketch13.setExpression("Constraints[10]", "Params.sketch13_width")
sketch13.setExpression("Constraints[11]", "Params.sketch13_width2")
sketch13.setExpression("Constraints[12]", "Params.sketch13_height")
sketch13.setExpression("Constraints[13]", "Params.sketch13_height2")
pad13 = doc.addObject("PartDesign::Pad", "Pad012")
body.addObject(pad13)
pad13.Profile = sketch13
pad13.setExpression("Length", "Params.pad13_length")

doc.recompute()
